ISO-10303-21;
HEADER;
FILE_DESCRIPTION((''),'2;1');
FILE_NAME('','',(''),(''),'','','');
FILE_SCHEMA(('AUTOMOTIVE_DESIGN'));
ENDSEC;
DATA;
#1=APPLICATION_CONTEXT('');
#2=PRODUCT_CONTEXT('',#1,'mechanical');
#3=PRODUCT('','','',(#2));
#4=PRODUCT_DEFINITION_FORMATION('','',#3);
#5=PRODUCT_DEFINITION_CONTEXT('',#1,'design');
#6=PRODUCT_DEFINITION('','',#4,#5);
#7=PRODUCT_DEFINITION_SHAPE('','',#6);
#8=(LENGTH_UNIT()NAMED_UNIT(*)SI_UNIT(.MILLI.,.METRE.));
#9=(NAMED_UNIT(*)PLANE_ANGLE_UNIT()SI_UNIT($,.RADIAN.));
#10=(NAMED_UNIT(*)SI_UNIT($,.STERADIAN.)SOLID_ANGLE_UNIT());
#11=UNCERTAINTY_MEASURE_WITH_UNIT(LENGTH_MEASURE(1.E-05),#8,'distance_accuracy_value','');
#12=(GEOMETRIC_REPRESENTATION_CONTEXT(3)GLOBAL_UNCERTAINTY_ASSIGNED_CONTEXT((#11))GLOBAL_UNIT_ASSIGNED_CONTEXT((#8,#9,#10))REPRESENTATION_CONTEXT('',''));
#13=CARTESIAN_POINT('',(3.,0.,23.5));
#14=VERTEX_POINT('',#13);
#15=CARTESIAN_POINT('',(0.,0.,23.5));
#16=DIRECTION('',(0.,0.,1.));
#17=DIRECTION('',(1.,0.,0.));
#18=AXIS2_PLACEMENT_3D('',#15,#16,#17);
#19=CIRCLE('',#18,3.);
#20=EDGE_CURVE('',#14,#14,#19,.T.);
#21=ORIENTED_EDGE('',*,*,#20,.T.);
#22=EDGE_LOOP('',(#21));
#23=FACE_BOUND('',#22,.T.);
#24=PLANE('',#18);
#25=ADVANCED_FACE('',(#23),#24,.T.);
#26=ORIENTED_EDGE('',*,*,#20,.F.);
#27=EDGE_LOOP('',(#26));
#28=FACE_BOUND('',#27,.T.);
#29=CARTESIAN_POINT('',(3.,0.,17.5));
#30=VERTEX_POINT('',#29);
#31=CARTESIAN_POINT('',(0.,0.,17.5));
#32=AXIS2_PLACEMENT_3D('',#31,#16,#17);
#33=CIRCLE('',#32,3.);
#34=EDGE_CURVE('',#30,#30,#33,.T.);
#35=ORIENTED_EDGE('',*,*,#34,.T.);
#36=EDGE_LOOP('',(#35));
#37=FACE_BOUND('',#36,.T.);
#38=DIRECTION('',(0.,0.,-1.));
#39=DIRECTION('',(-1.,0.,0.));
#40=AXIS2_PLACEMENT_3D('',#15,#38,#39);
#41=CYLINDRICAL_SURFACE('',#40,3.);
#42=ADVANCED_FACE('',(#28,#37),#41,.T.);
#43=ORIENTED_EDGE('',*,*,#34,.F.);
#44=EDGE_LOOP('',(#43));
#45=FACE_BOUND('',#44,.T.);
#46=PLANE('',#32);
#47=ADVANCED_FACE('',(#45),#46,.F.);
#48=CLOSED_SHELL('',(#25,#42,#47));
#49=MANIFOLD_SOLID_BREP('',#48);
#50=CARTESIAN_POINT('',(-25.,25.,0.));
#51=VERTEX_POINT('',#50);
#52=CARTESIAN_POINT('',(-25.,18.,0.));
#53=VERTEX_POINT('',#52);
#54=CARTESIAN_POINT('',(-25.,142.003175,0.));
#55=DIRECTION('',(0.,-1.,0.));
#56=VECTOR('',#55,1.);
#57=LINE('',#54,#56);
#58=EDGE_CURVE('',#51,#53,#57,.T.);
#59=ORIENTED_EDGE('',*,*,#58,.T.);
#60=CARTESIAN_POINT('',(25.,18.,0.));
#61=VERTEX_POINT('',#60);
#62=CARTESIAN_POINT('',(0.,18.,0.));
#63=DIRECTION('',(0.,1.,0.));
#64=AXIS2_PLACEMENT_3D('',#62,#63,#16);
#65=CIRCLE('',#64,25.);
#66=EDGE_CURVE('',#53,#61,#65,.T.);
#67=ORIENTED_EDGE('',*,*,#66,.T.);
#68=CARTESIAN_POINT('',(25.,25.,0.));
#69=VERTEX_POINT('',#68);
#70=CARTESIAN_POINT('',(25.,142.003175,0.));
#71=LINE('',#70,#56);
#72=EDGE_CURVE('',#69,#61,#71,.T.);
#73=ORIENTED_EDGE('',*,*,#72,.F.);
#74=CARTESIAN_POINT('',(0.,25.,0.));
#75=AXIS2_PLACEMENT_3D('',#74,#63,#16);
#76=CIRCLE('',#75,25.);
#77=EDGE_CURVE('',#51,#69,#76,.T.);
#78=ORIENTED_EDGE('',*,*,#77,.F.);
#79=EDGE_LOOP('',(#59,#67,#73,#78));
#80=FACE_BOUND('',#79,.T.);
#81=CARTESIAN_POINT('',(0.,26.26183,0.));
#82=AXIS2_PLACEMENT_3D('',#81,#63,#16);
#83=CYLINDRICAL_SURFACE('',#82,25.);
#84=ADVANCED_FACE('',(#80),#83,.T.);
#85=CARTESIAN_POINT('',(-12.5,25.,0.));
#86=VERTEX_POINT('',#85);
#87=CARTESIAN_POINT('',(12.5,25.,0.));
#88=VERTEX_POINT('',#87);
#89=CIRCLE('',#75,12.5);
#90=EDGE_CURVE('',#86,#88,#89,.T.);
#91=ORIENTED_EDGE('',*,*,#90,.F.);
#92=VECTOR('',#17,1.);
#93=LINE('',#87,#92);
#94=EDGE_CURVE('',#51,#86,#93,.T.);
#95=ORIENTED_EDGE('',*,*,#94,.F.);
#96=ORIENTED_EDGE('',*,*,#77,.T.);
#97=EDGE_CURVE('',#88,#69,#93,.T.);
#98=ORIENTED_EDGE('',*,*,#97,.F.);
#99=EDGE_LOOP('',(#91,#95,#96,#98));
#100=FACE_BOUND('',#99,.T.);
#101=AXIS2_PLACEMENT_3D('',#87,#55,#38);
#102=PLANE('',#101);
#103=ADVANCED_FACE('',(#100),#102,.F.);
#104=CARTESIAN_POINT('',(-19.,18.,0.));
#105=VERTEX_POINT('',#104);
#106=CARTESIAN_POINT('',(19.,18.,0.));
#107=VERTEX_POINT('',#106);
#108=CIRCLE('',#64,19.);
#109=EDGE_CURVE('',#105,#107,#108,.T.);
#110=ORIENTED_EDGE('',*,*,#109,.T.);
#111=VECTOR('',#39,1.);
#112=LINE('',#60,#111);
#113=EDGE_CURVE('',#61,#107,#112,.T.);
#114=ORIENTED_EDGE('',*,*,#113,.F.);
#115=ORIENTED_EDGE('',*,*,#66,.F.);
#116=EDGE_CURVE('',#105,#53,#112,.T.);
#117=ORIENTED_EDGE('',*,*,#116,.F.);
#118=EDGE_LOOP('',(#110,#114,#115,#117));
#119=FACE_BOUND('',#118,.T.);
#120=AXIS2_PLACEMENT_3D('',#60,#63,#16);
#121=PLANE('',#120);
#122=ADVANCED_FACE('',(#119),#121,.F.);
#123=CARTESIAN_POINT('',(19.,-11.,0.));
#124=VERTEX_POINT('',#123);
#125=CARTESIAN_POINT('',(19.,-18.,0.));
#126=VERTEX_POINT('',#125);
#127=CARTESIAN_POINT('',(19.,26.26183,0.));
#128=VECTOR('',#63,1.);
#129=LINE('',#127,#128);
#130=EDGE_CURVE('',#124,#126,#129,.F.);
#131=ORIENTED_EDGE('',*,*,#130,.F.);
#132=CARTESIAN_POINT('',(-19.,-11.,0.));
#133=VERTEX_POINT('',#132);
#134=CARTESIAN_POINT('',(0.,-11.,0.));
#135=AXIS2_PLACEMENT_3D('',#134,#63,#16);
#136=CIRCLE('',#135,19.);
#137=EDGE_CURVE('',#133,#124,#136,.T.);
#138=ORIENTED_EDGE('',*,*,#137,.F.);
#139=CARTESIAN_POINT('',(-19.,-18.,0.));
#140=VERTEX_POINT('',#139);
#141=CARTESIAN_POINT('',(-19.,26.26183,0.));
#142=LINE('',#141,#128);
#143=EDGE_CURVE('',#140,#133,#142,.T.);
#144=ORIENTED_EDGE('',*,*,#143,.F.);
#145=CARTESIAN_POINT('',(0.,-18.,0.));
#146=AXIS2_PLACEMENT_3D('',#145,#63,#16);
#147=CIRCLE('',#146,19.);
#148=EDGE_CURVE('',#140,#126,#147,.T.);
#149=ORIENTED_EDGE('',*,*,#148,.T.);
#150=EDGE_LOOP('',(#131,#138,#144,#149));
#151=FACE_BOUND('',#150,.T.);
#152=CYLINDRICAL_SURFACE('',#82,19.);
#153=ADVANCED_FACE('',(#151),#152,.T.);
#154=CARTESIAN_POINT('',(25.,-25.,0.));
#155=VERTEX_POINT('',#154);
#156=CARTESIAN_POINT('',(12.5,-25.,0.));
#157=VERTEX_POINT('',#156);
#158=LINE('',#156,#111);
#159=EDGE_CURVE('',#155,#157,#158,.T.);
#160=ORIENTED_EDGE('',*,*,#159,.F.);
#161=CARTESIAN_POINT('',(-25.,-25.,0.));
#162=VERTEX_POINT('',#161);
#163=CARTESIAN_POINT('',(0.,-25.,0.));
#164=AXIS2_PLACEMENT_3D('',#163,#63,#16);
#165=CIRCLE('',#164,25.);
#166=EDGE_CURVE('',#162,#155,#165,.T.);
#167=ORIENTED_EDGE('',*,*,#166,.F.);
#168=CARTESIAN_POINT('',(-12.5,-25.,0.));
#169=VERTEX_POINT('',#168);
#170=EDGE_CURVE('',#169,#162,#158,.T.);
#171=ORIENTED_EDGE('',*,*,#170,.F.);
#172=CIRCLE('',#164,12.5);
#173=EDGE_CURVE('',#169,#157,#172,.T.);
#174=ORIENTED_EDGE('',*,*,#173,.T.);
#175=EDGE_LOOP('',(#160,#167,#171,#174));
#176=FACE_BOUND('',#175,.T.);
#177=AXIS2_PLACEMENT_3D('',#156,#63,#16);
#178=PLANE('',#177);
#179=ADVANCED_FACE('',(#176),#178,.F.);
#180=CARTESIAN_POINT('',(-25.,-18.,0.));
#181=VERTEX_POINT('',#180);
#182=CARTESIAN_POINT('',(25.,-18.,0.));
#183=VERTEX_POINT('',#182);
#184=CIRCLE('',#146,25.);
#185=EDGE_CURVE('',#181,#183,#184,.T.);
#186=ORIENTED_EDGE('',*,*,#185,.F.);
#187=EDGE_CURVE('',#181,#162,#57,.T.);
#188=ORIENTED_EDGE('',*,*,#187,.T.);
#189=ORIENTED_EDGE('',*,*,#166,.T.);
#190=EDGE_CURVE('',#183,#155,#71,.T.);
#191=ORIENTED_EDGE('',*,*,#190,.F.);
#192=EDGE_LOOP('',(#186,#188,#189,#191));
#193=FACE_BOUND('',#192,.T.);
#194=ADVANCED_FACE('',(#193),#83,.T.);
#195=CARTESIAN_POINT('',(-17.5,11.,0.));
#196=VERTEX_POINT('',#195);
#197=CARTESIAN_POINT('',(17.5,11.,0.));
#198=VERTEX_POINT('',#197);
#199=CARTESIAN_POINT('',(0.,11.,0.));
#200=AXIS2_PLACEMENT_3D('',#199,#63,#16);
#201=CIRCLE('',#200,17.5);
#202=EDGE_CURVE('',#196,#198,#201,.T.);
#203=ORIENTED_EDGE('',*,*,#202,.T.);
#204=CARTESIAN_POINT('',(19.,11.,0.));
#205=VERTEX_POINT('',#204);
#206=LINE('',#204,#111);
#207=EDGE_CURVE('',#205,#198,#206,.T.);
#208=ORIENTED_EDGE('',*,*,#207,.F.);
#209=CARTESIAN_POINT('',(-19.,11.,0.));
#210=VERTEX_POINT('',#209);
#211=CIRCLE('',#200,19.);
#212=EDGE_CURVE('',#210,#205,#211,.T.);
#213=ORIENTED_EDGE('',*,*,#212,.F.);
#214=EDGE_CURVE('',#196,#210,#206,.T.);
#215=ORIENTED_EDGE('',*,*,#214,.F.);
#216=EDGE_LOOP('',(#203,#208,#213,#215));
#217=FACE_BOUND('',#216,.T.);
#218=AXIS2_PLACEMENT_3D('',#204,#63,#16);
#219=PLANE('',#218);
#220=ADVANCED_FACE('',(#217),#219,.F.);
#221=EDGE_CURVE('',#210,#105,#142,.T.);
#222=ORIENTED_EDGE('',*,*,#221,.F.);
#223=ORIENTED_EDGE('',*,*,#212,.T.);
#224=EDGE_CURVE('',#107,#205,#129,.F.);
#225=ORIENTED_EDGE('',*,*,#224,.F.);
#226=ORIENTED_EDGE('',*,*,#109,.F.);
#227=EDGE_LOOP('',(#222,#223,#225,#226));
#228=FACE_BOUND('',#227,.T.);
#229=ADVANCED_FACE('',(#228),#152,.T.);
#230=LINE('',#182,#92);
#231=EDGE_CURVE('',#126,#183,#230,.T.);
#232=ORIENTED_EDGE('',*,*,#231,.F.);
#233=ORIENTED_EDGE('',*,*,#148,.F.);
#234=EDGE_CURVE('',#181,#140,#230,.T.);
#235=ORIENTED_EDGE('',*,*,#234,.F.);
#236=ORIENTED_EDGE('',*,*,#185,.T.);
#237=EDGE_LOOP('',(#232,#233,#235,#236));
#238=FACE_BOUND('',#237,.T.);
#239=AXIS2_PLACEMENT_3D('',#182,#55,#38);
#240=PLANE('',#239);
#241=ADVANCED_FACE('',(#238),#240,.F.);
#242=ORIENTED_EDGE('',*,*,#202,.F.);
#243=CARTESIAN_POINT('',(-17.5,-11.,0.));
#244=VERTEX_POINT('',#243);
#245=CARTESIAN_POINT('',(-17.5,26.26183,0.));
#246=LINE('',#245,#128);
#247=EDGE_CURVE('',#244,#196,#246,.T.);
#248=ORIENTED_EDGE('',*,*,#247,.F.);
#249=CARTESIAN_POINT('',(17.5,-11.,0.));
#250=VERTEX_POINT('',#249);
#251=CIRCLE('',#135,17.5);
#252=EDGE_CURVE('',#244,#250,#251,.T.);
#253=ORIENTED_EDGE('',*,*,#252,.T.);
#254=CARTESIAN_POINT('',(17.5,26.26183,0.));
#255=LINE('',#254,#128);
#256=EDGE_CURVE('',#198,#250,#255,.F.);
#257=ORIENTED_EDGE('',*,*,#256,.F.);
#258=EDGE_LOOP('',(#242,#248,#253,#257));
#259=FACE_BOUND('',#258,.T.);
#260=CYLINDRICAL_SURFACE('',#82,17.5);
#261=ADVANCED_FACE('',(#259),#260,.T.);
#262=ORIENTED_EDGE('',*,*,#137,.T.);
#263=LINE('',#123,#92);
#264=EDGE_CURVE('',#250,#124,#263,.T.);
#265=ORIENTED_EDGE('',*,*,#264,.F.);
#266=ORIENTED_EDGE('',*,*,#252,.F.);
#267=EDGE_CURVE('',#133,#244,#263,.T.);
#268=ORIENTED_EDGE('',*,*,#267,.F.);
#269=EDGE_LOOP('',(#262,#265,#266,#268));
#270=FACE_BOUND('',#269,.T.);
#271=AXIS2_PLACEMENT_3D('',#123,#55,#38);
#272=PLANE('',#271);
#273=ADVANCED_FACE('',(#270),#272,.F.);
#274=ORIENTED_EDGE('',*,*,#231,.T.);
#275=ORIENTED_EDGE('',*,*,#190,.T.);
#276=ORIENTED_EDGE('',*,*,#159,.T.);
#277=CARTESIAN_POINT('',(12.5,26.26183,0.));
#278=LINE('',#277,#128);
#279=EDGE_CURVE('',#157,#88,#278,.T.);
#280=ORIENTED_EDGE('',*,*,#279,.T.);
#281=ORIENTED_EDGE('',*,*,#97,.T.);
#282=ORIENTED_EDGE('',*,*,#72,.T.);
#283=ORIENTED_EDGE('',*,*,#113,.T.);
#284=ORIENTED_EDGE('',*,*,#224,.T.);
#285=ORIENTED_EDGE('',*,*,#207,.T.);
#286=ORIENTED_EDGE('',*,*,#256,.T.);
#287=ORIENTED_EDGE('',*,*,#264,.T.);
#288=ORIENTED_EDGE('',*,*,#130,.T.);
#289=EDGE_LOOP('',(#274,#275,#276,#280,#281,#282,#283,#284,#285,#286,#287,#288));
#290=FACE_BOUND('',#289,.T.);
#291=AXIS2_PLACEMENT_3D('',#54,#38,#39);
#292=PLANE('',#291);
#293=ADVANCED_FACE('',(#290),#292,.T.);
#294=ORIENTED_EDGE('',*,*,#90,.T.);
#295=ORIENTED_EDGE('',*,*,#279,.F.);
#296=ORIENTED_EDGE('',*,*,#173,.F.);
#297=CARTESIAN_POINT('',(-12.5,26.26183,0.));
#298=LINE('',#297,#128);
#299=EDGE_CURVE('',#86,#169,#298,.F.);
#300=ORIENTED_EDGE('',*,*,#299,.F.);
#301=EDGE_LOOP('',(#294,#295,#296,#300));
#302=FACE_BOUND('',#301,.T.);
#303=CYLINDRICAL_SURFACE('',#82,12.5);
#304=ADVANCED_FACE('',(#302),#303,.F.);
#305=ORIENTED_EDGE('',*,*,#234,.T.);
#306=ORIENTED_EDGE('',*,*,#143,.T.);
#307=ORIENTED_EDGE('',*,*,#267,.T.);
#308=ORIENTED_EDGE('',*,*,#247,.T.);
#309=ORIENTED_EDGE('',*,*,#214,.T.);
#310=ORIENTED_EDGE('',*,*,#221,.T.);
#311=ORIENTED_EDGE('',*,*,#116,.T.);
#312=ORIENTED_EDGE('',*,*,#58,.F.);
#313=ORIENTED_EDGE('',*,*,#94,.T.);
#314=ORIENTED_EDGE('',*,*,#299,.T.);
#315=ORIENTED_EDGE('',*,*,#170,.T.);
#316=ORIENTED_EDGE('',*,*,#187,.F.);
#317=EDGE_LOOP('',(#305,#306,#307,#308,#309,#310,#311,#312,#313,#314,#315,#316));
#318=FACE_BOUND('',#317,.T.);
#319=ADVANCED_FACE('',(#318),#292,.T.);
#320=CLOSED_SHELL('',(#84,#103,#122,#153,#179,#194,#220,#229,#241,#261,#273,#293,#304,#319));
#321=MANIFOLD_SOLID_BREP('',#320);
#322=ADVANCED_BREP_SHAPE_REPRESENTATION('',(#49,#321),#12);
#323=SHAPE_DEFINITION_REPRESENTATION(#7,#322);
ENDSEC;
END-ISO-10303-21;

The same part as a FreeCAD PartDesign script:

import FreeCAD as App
import Part
import Sketcher

V = App.Vector


def add_polygon(sketch, points):
    """Adds a closed chain of lines whose ends are joined by coincident constraints."""
    first, n = sketch.GeometryCount, len(points)
    for a, b in zip(points, points[1:] + points[:1]):
        sketch.addGeometry(Part.LineSegment(App.Vector(*a, 0), App.Vector(*b, 0)), False)
    for i in range(n):
        sketch.addConstraint(Sketcher.Constraint("Coincident", first + i, 2, first + (i + 1) % n, 1))

doc = App.newDocument("Part")
body = doc.addObject("PartDesign::Body", "Body")

sketch1 = body.newObject("Sketcher::SketchObject", "Sketch")
sketch1.AttachmentSupport = (doc.getObject("XY_Plane"), [""])
sketch1.MapMode = "FlatFace"
add_polygon(sketch1, [(12.5, 25), (12.5, -25), (25, -25), (25, -18), (19, -18), (19, -11), (17.5, -11), (17.5, 11), (19, 11), (19, 18), (25, 18), (25, 25)])
sketch1.addConstraint([
    Sketcher.Constraint("Vertical", 0),
    Sketcher.Constraint("Horizontal", 1),
    Sketcher.Constraint("Vertical", 2),
    Sketcher.Constraint("Horizontal", 3),
    Sketcher.Constraint("Vertical", 4),
    Sketcher.Constraint("Horizontal", 5),
    Sketcher.Constraint("Vertical", 6),
    Sketcher.Constraint("Horizontal", 7),
    Sketcher.Constraint("Vertical", 8),
    Sketcher.Constraint("Horizontal", 9),
    Sketcher.Constraint("Vertical", 10),
    Sketcher.Constraint("Horizontal", 11),
    Sketcher.Constraint("Symmetric", 4, 2, 7, 2, -1),
    Sketcher.Constraint("Symmetric", 2, 2, 9, 2, -1),
    Sketcher.Constraint("Equal", 2, 4),
    Sketcher.Constraint("Equal", 8, 10),
    Sketcher.Constraint("DistanceX", 3, 2, 3, 1, 6.0),
    Sketcher.Constraint("DistanceY", 0, 2, 0, 1, 50.0),
    Sketcher.Constraint("DistanceY", 2, 1, 2, 2, 7.0),
    Sketcher.Constraint("DistanceX", 1, 1, 1, 2, 12.5),
    Sketcher.Constraint("DistanceX", 5, 2, 5, 1, 1.5),
    Sketcher.Constraint("DistanceX", -1, 1, 1, 2, 25.0),
])
revolution = body.newObject("PartDesign::Revolution", "Revolution")
revolution.Profile = sketch1
revolution.ReferenceAxis = (sketch1, ["V_Axis"])
revolution.Angle = 360

sketch2 = body.newObject("Sketcher::SketchObject", "Sketch001")
sketch2.AttachmentSupport = (doc.getObject("XZ_Plane"), [""])
sketch2.MapMode = "FlatFace"
sketch2.AttachmentOffset = App.Placement(V(0, 0, -25), App.Rotation())
add_polygon(sketch2, [(-147, 0), (147, 0), (147, -244), (-147, -244)])
sketch2.addConstraint([
    Sketcher.Constraint("Horizontal", 0),
    Sketcher.Constraint("Vertical", 1),
    Sketcher.Constraint("Horizontal", 2),
    Sketcher.Constraint("Vertical", 3),
    Sketcher.Constraint("Symmetric", 0, 2, 3, 2, -1, 1),
    Sketcher.Constraint("DistanceX", -1, 1, 0, 2, 146.803399),
    Sketcher.Constraint("DistanceY", 1, 2, 1, 1, 243.606798),
])
pocket1 = body.newObject("PartDesign::Pocket", "Pocket")
pocket1.Profile = sketch2
pocket1.Type = "ThroughAll"
pocket1.Midplane = True
body2 = doc.addObject("PartDesign::Body", "Body001")

sketch3 = body2.newObject("Sketcher::SketchObject", "Sketch002")
sketch3.AttachmentSupport = (doc.getObject("XY_Plane001"), [""])
sketch3.MapMode = "FlatFace"
sketch3.AttachmentOffset = App.Placement(V(0, 0, 17.5), App.Rotation())
sketch3.addGeometry(Part.Circle(V(0, 0, 0), V(0, 0, 1), 3), False)
sketch3.addConstraint([
    Sketcher.Constraint("Coincident", 0, 3, -1, 1),
    Sketcher.Constraint("Diameter", 0, 6.0),
])
pad1 = body2.newObject("PartDesign::Pad", "Pad")
pad1.Profile = sketch3
pad1.Length = 6

doc.recompute()
